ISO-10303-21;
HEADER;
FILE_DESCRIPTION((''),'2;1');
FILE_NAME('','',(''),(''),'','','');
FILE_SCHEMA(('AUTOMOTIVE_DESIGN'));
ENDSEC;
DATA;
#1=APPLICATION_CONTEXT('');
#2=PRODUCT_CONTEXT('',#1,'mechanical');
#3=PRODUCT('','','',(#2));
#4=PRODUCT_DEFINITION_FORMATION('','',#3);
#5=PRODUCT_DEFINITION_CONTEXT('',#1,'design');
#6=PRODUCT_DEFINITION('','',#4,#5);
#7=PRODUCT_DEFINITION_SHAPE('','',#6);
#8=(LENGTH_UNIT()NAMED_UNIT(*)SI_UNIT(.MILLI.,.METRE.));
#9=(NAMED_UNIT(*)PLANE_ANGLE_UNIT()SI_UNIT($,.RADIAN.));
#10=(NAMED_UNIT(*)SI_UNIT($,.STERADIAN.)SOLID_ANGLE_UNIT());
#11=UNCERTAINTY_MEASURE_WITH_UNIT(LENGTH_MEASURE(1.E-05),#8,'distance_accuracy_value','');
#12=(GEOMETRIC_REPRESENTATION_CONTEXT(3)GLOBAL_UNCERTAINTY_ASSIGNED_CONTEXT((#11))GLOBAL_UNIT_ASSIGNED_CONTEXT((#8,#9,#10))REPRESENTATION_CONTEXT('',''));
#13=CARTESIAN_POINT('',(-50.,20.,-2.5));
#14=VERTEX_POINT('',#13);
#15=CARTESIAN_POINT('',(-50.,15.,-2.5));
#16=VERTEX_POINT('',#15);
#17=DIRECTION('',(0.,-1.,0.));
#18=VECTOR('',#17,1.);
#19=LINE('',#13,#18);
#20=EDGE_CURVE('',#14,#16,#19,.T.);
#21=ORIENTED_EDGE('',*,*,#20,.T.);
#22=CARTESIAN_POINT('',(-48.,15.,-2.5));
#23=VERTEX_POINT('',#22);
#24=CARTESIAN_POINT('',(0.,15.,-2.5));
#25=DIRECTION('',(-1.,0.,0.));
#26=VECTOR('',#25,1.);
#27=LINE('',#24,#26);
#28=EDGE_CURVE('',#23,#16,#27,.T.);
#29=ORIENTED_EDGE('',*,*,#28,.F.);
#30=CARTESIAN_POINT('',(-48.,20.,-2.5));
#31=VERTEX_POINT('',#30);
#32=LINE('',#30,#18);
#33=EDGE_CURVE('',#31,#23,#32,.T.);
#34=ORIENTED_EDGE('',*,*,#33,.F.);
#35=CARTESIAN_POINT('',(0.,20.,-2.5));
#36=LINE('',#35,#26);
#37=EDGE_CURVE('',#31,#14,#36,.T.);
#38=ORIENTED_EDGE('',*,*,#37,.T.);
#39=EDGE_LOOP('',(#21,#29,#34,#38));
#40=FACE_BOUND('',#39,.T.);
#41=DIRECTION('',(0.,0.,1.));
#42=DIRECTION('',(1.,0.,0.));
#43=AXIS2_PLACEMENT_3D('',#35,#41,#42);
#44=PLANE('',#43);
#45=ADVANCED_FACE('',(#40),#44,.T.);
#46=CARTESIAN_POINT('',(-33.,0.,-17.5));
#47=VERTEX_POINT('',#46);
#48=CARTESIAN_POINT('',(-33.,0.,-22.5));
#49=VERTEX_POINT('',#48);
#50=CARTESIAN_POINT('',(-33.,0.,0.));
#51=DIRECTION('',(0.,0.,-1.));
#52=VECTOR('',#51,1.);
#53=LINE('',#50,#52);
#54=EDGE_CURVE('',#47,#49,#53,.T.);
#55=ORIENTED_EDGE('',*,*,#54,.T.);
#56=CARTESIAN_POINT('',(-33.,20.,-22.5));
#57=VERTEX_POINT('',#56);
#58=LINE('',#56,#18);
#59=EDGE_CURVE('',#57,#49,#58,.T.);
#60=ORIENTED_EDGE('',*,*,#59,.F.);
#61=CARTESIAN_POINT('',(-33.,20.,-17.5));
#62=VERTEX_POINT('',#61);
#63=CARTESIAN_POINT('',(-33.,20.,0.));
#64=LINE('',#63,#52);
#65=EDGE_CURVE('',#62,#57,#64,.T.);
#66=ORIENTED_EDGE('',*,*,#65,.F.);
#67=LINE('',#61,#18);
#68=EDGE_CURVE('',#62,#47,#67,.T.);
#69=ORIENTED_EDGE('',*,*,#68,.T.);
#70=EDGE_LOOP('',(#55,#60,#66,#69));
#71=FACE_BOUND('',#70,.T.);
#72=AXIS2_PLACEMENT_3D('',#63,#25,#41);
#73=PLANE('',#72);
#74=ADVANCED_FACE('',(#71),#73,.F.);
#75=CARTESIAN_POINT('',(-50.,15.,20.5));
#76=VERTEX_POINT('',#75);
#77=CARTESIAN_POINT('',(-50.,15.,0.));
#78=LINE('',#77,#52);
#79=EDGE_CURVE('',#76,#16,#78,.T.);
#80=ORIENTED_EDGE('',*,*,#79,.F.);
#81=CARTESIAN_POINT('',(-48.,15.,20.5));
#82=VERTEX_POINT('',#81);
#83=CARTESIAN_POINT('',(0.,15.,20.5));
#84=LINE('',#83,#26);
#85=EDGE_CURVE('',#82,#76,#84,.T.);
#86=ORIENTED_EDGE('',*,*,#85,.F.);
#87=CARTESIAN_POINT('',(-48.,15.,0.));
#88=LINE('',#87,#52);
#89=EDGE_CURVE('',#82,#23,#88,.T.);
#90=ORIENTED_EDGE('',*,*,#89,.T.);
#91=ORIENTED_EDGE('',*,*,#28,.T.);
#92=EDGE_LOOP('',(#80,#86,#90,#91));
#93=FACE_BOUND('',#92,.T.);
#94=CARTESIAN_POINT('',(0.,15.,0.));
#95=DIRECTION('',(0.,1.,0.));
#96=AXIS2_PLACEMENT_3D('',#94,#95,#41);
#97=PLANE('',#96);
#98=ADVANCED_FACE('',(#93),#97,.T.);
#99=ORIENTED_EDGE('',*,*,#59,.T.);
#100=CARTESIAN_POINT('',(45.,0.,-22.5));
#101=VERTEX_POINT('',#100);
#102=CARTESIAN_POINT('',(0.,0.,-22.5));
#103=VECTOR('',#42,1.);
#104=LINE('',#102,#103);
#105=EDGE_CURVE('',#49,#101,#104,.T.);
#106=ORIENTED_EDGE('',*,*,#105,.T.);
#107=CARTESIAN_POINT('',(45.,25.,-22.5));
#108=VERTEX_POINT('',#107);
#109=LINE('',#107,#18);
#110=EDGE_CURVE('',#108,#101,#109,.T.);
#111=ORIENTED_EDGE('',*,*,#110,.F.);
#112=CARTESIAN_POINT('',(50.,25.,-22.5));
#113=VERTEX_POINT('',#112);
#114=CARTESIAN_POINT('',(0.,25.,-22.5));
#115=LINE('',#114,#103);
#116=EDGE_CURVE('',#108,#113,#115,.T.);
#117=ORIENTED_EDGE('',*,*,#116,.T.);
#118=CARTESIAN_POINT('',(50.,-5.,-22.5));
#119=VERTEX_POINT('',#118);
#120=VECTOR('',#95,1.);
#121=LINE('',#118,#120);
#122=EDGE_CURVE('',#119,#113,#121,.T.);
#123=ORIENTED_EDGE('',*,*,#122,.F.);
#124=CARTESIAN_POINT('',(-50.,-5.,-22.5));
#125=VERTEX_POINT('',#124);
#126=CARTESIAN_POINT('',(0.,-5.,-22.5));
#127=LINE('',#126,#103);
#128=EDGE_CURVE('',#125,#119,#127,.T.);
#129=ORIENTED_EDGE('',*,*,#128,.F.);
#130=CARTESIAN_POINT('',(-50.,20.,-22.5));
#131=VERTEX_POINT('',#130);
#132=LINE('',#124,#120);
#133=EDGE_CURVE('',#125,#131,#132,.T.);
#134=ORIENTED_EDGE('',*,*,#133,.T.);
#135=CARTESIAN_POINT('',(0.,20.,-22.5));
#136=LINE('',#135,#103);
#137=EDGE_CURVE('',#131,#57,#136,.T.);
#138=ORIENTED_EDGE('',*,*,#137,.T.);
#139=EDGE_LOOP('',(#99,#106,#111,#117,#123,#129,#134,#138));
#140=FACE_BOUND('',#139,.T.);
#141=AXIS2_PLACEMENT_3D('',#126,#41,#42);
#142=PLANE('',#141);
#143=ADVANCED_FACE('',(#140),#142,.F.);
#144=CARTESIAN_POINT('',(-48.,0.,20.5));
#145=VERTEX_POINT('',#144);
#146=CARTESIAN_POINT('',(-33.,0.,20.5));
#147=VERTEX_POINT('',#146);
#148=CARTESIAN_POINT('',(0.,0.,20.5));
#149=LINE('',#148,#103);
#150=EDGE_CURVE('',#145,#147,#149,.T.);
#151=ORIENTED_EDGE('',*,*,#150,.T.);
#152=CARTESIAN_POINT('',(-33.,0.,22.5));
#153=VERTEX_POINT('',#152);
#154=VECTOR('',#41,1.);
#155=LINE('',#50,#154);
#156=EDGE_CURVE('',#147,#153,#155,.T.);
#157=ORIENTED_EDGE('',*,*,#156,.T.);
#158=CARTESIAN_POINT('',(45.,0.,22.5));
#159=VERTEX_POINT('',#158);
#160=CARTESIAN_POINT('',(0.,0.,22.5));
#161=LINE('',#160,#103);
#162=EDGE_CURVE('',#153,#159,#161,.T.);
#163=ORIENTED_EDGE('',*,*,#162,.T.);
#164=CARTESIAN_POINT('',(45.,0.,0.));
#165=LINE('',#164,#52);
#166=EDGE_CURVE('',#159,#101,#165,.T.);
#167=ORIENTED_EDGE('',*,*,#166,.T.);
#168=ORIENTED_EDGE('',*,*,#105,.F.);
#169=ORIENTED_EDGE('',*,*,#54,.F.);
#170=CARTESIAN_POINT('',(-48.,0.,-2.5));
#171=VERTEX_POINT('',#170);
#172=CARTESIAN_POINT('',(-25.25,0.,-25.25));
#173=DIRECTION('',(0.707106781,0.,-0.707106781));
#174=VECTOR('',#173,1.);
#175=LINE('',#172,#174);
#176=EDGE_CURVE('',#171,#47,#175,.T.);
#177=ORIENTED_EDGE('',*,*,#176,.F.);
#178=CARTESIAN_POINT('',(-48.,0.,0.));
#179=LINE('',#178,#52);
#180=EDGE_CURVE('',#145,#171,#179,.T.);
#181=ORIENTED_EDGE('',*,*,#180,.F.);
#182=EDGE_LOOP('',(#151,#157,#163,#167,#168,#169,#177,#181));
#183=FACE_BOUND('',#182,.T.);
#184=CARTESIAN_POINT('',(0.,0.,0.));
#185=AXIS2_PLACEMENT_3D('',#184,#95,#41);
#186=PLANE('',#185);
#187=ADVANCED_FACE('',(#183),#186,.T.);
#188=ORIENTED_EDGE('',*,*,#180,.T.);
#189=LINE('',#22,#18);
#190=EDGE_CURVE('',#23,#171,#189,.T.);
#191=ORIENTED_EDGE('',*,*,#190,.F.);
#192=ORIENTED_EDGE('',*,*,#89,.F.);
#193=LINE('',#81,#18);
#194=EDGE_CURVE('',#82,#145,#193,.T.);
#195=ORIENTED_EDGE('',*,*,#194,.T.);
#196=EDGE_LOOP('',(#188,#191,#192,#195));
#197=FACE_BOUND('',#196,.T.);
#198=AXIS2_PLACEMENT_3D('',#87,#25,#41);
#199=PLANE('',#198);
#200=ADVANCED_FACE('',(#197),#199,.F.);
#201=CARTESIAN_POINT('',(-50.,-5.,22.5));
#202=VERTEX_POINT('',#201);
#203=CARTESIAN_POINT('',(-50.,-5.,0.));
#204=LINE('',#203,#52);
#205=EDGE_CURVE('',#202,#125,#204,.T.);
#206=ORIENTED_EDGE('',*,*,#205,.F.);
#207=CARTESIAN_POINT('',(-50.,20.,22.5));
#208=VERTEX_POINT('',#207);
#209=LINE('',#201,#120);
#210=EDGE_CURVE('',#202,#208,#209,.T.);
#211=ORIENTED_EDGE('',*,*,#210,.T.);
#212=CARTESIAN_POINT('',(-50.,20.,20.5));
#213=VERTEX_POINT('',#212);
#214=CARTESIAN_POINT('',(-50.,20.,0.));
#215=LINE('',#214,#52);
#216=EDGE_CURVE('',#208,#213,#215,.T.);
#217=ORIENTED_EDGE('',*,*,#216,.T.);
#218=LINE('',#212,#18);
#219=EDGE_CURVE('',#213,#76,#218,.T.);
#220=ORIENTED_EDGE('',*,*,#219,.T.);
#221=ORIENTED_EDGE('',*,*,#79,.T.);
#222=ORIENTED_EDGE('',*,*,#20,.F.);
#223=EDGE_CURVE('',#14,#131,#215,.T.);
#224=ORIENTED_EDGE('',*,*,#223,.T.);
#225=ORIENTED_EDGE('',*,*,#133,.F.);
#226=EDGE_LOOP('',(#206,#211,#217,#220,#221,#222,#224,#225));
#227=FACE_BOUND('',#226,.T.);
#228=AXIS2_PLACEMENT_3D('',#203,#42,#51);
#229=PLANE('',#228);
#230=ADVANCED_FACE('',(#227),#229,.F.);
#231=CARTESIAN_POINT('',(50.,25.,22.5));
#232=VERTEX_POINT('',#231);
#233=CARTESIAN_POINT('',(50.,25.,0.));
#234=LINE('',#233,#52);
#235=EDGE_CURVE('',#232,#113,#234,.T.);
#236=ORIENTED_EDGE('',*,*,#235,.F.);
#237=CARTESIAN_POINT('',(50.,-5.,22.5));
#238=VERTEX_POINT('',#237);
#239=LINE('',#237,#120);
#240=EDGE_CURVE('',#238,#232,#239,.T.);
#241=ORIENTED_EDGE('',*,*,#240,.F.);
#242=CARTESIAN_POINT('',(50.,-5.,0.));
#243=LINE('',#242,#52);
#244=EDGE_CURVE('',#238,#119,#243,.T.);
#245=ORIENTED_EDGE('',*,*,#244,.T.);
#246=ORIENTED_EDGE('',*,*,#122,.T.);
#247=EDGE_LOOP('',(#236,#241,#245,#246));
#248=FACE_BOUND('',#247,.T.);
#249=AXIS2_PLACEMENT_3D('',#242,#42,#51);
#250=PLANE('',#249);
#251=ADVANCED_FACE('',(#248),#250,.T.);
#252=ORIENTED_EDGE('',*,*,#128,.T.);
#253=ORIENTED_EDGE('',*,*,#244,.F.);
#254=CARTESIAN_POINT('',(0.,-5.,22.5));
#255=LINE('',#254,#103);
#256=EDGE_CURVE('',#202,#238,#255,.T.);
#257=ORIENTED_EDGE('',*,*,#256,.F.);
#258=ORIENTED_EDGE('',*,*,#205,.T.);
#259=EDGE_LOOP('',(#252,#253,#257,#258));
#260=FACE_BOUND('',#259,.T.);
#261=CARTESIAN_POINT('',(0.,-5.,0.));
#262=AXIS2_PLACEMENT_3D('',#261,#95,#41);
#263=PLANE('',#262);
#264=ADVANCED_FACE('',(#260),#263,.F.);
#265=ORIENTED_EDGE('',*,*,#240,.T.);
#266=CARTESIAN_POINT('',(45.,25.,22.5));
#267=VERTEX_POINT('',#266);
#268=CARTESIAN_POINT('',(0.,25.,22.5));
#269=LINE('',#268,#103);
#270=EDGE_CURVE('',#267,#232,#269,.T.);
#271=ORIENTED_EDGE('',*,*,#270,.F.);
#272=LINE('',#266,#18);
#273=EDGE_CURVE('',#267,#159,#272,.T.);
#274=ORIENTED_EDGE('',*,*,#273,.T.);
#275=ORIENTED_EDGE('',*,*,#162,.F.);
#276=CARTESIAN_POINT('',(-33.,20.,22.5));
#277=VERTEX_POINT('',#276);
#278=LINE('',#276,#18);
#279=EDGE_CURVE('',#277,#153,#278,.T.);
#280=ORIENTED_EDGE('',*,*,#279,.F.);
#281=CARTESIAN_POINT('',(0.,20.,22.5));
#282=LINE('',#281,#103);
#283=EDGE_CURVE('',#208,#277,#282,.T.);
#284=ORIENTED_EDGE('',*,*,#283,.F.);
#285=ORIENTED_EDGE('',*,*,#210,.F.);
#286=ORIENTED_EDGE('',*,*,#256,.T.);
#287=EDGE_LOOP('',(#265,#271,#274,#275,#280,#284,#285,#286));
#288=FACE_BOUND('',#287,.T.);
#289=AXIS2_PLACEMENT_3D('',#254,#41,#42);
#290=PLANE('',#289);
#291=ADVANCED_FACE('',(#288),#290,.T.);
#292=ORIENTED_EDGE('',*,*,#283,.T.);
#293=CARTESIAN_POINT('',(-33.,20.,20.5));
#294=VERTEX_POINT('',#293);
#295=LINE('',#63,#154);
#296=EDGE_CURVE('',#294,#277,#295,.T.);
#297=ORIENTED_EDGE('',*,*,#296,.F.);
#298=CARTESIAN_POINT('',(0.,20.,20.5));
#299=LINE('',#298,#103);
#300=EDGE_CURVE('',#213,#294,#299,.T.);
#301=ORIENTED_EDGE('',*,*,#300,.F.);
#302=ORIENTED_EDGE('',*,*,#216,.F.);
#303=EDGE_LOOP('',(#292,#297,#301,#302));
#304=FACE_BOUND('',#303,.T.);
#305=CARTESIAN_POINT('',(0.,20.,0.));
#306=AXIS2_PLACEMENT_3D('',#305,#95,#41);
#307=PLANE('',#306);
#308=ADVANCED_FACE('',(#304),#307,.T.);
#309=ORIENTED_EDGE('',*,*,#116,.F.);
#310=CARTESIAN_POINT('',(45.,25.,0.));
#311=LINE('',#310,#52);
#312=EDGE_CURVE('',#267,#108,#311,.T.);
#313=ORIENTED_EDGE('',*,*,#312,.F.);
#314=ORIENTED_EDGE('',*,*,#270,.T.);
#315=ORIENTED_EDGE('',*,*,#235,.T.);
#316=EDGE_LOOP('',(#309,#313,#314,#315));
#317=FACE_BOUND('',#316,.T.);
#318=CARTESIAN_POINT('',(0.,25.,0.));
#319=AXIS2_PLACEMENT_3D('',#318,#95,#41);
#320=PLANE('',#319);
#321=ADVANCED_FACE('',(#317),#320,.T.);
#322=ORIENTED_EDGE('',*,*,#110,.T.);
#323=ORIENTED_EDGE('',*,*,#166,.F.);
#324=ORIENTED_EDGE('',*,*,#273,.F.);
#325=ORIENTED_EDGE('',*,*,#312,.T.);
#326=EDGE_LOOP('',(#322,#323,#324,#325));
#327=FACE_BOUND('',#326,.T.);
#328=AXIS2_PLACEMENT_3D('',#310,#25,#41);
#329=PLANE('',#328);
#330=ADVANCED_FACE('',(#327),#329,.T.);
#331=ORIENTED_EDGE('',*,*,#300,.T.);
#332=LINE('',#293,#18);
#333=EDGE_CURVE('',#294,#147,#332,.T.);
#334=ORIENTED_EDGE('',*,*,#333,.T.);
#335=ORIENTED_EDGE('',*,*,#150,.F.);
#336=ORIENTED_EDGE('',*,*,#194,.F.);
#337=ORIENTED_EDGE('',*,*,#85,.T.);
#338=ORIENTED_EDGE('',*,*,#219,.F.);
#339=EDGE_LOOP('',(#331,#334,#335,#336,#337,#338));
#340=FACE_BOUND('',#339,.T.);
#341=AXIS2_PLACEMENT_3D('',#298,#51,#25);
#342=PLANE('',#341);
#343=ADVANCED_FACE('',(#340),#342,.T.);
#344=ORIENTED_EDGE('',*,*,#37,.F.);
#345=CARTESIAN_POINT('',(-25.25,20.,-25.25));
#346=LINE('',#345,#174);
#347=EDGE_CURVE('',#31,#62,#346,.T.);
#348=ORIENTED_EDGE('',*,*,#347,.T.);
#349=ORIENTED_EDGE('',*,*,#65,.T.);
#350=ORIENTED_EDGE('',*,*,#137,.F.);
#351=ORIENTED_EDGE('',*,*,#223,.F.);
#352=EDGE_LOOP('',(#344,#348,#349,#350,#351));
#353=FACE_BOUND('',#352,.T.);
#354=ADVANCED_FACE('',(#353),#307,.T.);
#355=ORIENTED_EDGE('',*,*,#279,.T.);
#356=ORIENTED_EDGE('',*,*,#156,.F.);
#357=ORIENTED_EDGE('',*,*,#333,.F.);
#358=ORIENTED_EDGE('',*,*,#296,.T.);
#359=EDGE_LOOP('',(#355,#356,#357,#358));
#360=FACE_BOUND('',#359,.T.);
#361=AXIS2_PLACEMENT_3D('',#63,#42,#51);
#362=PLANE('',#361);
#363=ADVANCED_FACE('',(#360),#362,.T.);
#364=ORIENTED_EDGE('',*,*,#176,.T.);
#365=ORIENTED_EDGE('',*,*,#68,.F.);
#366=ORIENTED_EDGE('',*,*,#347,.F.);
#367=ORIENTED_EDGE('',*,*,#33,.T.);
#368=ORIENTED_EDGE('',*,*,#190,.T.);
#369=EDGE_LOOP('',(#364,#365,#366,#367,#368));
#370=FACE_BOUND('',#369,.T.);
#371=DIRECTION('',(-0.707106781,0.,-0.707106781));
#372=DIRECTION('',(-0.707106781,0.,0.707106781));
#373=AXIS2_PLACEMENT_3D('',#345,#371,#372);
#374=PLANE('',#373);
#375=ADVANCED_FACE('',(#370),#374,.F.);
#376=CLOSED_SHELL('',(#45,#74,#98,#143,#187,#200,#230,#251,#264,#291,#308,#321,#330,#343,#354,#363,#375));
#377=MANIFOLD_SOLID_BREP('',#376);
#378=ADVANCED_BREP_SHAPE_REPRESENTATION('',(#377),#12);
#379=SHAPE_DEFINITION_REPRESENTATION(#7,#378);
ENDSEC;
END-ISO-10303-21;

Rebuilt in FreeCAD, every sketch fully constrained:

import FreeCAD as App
import Part
import Sketcher
from FreeCAD import Vector
Q = App.Units.Quantity


def add_polygon(sketch, points):
    """Adds a closed chain of lines whose ends are joined by coincident constraints."""
    first, n = sketch.GeometryCount, len(points)
    for a, b in zip(points, points[1:] + points[:1]):
        sketch.addGeometry(Part.LineSegment(App.Vector(*a, 0), App.Vector(*b, 0)), False)
    for i in range(n):
        sketch.addConstraint(Sketcher.Constraint("Coincident", first + i, 2, first + (i + 1) % n, 1))

doc = App.newDocument("Part")
body = doc.addObject("PartDesign::Body", "Body")

# Sketch on XZ plane
sketch1 = body.newObject("Sketcher::SketchObject", "Sketch")
sketch1.AttachmentSupport = (doc.getObject("XZ_Plane"), [""])
sketch1.MapMode = "FlatFace"
add_polygon(sketch1, [(50, 22), (50, -22), (-50, -22), (-50, 22)])  # lines 0-3
sketch1.addConstraint([
    Sketcher.Constraint("Vertical", 0),
    Sketcher.Constraint("Horizontal", 1),
    Sketcher.Constraint("Vertical", 2),
    Sketcher.Constraint("Horizontal", 3),
    Sketcher.Constraint("Symmetric", 0, 2, 2, 2, -1, 1),
    Sketcher.Constraint("DistanceX", 1, 2, 1, 1, Q("100 mm")),
    Sketcher.Constraint("DistanceY", 0, 2, 0, 1, Q("45 mm")),
])
pad1 = body.newObject("PartDesign::Pad", "Pad")
pad1.Profile = sketch1
pad1.Length = 5

# Sketch on XZ plane
sketch2 = body.newObject("Sketcher::SketchObject", "Sketch001")
sketch2.AttachmentSupport = (doc.getObject("XZ_Plane"), [""])
sketch2.MapMode = "FlatFace"
add_polygon(sketch2, [(45, -22), (45, 22), (50, 22), (50, -22)])  # lines 0-3
sketch2.addConstraint([
    Sketcher.Constraint("Vertical", 0),
    Sketcher.Constraint("Horizontal", 1),
    Sketcher.Constraint("Vertical", 2),
    Sketcher.Constraint("Horizontal", 3),
    Sketcher.Constraint("DistanceX", 1, 1, 1, 2, Q("5 mm")),
    Sketcher.Constraint("DistanceY", 0, 1, 0, 2, Q("45 mm")),
    Sketcher.Constraint("DistanceX", -1, 1, 0, 2, Q("45 mm")),
    Sketcher.Constraint("DistanceY", -1, 1, 0, 2, Q("22.5 mm")),
])
pad2 = body.newObject("PartDesign::Pad", "Pad001")
pad2.Profile = sketch2
pad2.Length = 25
pad2.Reversed = True

# Sketch on XZ plane
sketch3 = body.newObject("Sketcher::SketchObject", "Sketch002")
sketch3.AttachmentSupport = (doc.getObject("XZ_Plane"), [""])
sketch3.MapMode = "FlatFace"
add_polygon(sketch3, [(-33, 22.5), (-33, 20.5), (-50, 20.5), (-50, 22.5)])  # lines 0-3
sketch3.addConstraint([
    Sketcher.Constraint("Vertical", 0),
    Sketcher.Constraint("Horizontal", 1),
    Sketcher.Constraint("Vertical", 2),
    Sketcher.Constraint("Horizontal", 3),
    Sketcher.Constraint("DistanceX", 1, 2, 1, 1, Q("17 mm")),
    Sketcher.Constraint("DistanceY", 0, 2, 0, 1, Q("2 mm")),
    Sketcher.Constraint("DistanceX", 0, 2, -1, 1, Q("33 mm")),
    Sketcher.Constraint("DistanceY", -1, 1, 0, 2, Q("20.5 mm")),
])
pad3 = body.newObject("PartDesign::Pad", "Pad002")
pad3.Profile = sketch3
pad3.Length = 20
pad3.Reversed = True

# Sketch on XZ plane
sketch4 = body.newObject("Sketcher::SketchObject", "Sketch003")
sketch4.AttachmentSupport = (doc.getObject("XZ_Plane"), [""])
sketch4.MapMode = "FlatFace"
add_polygon(sketch4, [(-50, -2.5), (-48, -2.5), (-33, -17.5), (-33, -22.5), (-50, -22.5)])  # lines 0-4
sketch4.addConstraint([
    Sketcher.Constraint("Horizontal", 0),
    Sketcher.Constraint("Vertical", 2),
    Sketcher.Constraint("Horizontal", 3),
    Sketcher.Constraint("Vertical", 4),
    Sketcher.Constraint("DistanceX", 0, 1, 0, 2, Q("2 mm")),
    Sketcher.Constraint("DistanceX", 3, 2, 3, 1, Q("17 mm")),
    Sketcher.Constraint("DistanceY", 2, 2, 2, 1, Q("5 mm")),
    Sketcher.Constraint("DistanceY", 4, 1, 4, 2, Q("20 mm")),
    Sketcher.Constraint("DistanceX", 0, 2, -1, 1, Q("48 mm")),
    Sketcher.Constraint("DistanceY", 0, 2, -1, 1, Q("2.5 mm")),
])
pad4 = body.newObject("PartDesign::Pad", "Pad003")
pad4.Profile = sketch4
pad4.Length = 20
pad4.Reversed = True

# Sketch on XZ plane
sketch5 = body.newObject("Sketcher::SketchObject", "Sketch004")
sketch5.AttachmentSupport = (doc.getObject("XZ_Plane"), [""])
sketch5.MapMode = "FlatFace"
add_polygon(sketch5, [(-50, -2.5), (-50, 20.5), (-48, 20.5), (-48, -2.5)])  # lines 0-3
sketch5.addConstraint([
    Sketcher.Constraint("Vertical", 0),
    Sketcher.Constraint("Horizontal", 1),
    Sketcher.Constraint("Vertical", 2),
    Sketcher.Constraint("Horizontal", 3),
    Sketcher.Constraint("DistanceX", 1, 1, 1, 2, Q("2 mm")),
    Sketcher.Constraint("DistanceY", 0, 1, 0, 2, Q("23 mm")),
    Sketcher.Constraint("DistanceX", 0, 2, -1, 1, Q("50 mm")),
    Sketcher.Constraint("DistanceY", -1, 1, 0, 2, Q("20.5 mm")),
])
pad5 = body.newObject("PartDesign::Pad", "Pad004")
pad5.Profile = sketch5
pad5.Length = 15
pad5.Reversed = True

doc.recompute()
